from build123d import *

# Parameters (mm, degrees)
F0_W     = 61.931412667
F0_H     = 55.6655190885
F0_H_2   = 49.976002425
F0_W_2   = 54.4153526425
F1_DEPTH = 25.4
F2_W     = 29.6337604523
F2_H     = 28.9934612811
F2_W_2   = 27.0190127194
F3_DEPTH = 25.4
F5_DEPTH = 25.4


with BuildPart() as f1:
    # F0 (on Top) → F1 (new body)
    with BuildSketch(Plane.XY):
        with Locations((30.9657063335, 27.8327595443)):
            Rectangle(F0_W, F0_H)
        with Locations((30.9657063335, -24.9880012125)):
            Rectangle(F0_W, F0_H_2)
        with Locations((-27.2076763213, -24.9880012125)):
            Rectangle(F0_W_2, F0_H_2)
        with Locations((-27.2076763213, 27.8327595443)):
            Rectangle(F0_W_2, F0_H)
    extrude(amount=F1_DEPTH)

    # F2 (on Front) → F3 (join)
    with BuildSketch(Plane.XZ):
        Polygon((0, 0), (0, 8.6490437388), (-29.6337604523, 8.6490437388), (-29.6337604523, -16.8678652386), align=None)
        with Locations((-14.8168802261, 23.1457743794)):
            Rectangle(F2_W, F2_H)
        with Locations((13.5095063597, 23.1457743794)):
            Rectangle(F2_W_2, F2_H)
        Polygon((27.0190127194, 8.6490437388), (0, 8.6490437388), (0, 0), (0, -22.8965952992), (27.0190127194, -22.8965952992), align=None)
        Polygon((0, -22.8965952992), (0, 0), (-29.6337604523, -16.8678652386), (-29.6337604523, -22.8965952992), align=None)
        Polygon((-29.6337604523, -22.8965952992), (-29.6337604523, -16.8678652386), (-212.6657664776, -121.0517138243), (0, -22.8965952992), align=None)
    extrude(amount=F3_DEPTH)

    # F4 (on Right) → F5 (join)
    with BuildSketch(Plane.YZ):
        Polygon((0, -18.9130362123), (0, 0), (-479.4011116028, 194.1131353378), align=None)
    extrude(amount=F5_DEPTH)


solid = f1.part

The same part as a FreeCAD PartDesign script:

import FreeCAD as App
import Part
import Sketcher
Q = App.Units.Quantity


def add_polygon(sketch, points):
    """Adds a closed chain of lines whose ends are joined by coincident constraints."""
    first, n = sketch.GeometryCount, len(points)
    for a, b in zip(points, points[1:] + points[:1]):
        sketch.addGeometry(Part.LineSegment(App.Vector(*a, 0), App.Vector(*b, 0)), False)
    for i in range(n):
        sketch.addConstraint(Sketcher.Constraint("Coincident", first + i, 2, first + (i + 1) % n, 1))

doc = App.newDocument("Part")
body = doc.addObject("PartDesign::Body", "Body")

# Sketch on XY plane
sketch1 = body.newObject("Sketcher::SketchObject", "Sketch")
sketch1.AttachmentSupport = (doc.getObject("XY_Plane"), [""])
sketch1.MapMode = "FlatFace"
add_polygon(sketch1, [(-54, -50), (62, -50), (62, 56), (-54, 56)])  # lines 0-3
sketch1.addConstraint([
    Sketcher.Constraint("Horizontal", 0),
    Sketcher.Constraint("Vertical", 1),
    Sketcher.Constraint("Horizontal", 2),
    Sketcher.Constraint("Vertical", 3),
    Sketcher.Constraint("DistanceY", 1, 1, 1, 2, Q("105.641522 mm")),
    Sketcher.Constraint("DistanceX", 0, 1, 0, 2, Q("116.346765 mm")),
    Sketcher.Constraint("DistanceY", -1, 1, 1, 2, Q("55.665519 mm")),
    Sketcher.Constraint("DistanceX", -1, 1, 0, 2, Q("61.931413 mm")),
])
pad1 = body.newObject("PartDesign::Pad", "Pad")
pad1.Profile = sketch1
pad1.Length = Q("1 in")

# Sketch on XZ plane
sketch2 = body.newObject("Sketcher::SketchObject", "Sketch001")
sketch2.AttachmentSupport = (doc.getObject("XZ_Plane"), [""])
sketch2.MapMode = "FlatFace"
add_polygon(sketch2, [(27, 38), (-30, 38), (-30, -17), (-213, -121), (0, -23), (27, -23)])  # lines 0-5
sketch2.addConstraint([
    Sketcher.Constraint("Horizontal", 0),
    Sketcher.Constraint("Vertical", 1),
    Sketcher.Constraint("Horizontal", 4),
    Sketcher.Constraint("Vertical", 5),
    Sketcher.Constraint("PointOnObject", 3, 2, -2),
    Sketcher.Constraint("DistanceY", 5, 1, 5, 2, Q("60.5391 mm")),
    Sketcher.Constraint("DistanceY", 1, 2, 1, 1, Q("54.51037 mm")),
    Sketcher.Constraint("DistanceX", 0, 2, 0, 1, Q("56.652773 mm")),
    Sketcher.Constraint("DistanceX", 4, 1, 4, 2, Q("27.019013 mm")),
    Sketcher.Constraint("DistanceY", 2, 2, 1, 2, Q("104.183849 mm")),
    Sketcher.Constraint("DistanceX", 2, 2, 4, 2, Q("239.684779 mm")),
    Sketcher.Constraint("DistanceY", -1, 1, 0, 2, Q("37.642505 mm")),
])
pad2 = body.newObject("PartDesign::Pad", "Pad001")
pad2.Profile = sketch2
pad2.Length = Q("1 in")

# Sketch on YZ plane
sketch3 = body.newObject("Sketcher::SketchObject", "Sketch002")
sketch3.AttachmentSupport = (doc.getObject("YZ_Plane"), [""])
sketch3.MapMode = "FlatFace"
add_polygon(sketch3, [(0, -19), (0, 0), (-479, 194)])  # lines 0-2
sketch3.addConstraint([
    Sketcher.Constraint("Vertical", 0),
    Sketcher.Constraint("Coincident", 0, 2, -1, 1),
    Sketcher.Constraint("Distance", 1, Q("517.209179 mm")),
    Sketcher.Constraint("DistanceY", 0, 1, 0, 2, Q("18.913036 mm")),
    Sketcher.Constraint("DistanceX", 1, 2, -1, 1, Q("479.401112 mm")),
])
pad3 = body.newObject("PartDesign::Pad", "Pad002")
pad3.Profile = sketch3
pad3.Length = Q("1 in")

doc.recompute()
